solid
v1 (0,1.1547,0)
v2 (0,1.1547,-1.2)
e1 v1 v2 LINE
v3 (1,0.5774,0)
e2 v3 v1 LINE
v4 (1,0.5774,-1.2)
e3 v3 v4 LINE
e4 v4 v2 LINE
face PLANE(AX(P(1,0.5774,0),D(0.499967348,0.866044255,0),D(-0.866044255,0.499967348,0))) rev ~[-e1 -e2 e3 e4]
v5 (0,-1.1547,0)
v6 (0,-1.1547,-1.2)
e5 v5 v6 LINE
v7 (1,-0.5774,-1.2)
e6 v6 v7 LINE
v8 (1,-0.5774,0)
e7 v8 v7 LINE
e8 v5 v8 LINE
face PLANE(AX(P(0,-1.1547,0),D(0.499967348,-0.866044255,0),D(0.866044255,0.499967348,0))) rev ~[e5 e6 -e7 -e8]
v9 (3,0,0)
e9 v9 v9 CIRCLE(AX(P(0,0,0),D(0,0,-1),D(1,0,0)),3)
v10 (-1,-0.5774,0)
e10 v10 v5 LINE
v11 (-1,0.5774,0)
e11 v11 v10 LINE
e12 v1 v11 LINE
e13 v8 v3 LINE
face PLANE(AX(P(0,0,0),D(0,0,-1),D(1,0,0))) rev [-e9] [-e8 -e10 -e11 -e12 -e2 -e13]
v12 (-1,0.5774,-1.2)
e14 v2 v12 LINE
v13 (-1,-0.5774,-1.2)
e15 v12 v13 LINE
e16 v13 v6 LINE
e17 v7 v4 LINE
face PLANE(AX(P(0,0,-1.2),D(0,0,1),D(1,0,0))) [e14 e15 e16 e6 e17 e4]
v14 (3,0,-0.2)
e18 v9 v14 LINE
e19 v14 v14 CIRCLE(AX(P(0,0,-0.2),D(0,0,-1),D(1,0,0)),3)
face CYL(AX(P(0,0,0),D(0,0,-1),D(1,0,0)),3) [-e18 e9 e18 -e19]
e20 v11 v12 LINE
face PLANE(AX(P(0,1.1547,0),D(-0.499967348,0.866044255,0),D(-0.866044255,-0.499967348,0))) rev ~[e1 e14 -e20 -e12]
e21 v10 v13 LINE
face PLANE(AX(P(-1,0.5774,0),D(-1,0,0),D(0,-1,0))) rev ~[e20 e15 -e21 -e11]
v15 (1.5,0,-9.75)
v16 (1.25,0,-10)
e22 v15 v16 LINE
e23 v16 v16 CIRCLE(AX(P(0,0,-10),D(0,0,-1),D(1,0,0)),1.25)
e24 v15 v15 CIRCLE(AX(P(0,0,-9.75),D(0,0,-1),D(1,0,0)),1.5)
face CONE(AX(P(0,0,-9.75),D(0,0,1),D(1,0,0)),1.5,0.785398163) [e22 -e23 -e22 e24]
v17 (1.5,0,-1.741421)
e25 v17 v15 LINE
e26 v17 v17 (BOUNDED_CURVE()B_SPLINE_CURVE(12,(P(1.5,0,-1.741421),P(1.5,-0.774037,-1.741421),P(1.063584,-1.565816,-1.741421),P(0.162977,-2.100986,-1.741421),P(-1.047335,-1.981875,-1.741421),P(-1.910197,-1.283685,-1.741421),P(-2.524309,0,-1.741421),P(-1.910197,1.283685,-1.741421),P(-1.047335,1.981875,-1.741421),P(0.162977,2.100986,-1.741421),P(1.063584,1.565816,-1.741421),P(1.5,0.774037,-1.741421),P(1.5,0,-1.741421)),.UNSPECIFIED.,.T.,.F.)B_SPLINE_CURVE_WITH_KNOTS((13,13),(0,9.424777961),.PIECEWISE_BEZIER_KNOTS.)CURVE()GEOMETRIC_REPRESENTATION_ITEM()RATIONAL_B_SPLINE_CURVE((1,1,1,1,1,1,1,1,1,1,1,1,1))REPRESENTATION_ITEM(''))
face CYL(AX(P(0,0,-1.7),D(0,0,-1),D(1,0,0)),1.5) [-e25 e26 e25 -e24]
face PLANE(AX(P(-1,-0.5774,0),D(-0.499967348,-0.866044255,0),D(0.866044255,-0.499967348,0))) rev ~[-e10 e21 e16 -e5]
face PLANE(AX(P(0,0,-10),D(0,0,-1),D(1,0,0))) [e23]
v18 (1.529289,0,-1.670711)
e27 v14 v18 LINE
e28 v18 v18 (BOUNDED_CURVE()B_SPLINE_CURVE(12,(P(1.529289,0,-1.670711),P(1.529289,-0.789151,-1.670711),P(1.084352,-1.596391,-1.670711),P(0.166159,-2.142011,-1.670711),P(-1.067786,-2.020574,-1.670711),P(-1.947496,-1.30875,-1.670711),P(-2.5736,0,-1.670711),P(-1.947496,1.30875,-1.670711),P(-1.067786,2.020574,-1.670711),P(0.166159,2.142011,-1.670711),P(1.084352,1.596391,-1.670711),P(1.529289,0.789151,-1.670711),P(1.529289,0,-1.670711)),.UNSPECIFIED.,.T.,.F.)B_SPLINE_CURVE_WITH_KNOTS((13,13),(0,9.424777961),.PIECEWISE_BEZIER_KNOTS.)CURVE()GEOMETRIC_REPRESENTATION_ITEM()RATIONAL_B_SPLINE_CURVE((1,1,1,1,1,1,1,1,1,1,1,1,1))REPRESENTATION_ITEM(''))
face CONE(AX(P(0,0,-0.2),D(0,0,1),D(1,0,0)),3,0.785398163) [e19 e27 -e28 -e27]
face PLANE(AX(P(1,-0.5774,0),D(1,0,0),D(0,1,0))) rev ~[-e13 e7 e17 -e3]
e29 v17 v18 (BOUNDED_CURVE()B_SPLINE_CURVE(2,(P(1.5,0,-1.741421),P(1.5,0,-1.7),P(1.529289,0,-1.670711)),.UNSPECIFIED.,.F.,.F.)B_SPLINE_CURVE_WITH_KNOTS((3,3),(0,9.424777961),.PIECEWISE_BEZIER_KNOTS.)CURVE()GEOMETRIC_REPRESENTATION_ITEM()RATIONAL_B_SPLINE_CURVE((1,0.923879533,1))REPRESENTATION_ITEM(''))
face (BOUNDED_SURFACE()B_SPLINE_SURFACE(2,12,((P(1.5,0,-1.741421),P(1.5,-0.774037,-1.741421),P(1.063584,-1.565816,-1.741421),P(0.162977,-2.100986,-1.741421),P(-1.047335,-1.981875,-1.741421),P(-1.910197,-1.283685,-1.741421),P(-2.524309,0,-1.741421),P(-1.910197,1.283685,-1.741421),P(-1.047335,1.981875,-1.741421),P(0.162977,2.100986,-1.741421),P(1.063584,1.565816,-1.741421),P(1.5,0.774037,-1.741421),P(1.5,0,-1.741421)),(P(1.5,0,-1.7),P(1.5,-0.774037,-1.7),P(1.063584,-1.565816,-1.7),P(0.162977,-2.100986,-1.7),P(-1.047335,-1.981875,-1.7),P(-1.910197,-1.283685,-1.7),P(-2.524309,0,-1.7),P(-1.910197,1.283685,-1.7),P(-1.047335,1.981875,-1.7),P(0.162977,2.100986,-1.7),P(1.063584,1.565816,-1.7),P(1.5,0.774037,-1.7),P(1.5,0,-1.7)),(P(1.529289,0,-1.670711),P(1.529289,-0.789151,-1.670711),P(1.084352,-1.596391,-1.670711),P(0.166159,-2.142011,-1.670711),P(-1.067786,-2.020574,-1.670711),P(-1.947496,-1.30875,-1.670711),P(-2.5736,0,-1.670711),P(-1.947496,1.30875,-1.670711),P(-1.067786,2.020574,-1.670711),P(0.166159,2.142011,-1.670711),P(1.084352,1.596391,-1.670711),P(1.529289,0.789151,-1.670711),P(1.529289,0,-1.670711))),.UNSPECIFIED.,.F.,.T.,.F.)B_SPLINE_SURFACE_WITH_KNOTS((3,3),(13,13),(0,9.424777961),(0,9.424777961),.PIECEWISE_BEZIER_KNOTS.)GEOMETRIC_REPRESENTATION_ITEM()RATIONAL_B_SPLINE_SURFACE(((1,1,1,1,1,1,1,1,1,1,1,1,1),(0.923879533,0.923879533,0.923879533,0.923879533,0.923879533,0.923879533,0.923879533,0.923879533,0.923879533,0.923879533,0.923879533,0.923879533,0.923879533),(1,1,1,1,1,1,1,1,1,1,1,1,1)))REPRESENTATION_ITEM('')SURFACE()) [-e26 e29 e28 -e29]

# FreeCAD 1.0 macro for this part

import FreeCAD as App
import Part
import Sketcher
Q = App.Units.Quantity


def edges_at(feature, points):
    """Names of the edges that pass closest to the given points."""
    edges = feature.Shape.Edges
    near = lambda p: min(range(len(edges)), key=lambda i: edges[i].distToShape(Part.Vertex(*p))[0])
    return sorted({f"Edge{near(p) + 1}" for p in points})


def add_polygon(sketch, points):
    """Adds a closed chain of lines whose ends are joined by coincident constraints."""
    first, n = sketch.GeometryCount, len(points)
    for a, b in zip(points, points[1:] + points[:1]):
        sketch.addGeometry(Part.LineSegment(App.Vector(*a, 0), App.Vector(*b, 0)), False)
    for i in range(n):
        sketch.addConstraint(Sketcher.Constraint("Coincident", first + i, 2, first + (i + 1) % n, 1))

doc = App.newDocument("Part")
body = doc.addObject("PartDesign::Body", "Body")

# Sketch on XZ plane
sketch1 = body.newObject("Sketcher::SketchObject", "Sketch")
sketch1.AttachmentSupport = (doc.getObject("XZ_Plane"), [""])
sketch1.MapMode = "FlatFace"
add_polygon(sketch1, [(1.5, -1.7), (1.5, -10), (0, -10), (0, 0), (3, 0), (3, -0.2)])  # lines 0-5
sketch1.addConstraint(Sketcher.Constraint("Vertical", 0))
sketch1.addConstraint(Sketcher.Constraint("Horizontal", 1))
sketch1.addConstraint(Sketcher.Constraint("Vertical", 2))
sketch1.addConstraint(Sketcher.Constraint("Horizontal", 3))
sketch1.addConstraint(Sketcher.Constraint("Vertical", 4))
sketch1.addConstraint(Sketcher.Constraint("Coincident", 2, 2, -1, 1))
sketch1.addConstraint(Sketcher.Constraint("DistanceX", 3, 1, 3, 2, Q("3 mm")))
sketch1.addConstraint(Sketcher.Constraint("DistanceY", 2, 1, 2, 2, Q("10 mm")))
sketch1.addConstraint(Sketcher.Constraint("DistanceX", 1, 2, 1, 1, Q("1.5 mm")))
sketch1.addConstraint(Sketcher.Constraint("DistanceY", 4, 2, 4, 1, Q("0.2 mm")))
sketch1.addConstraint(Sketcher.Constraint("DistanceY", 5, 2, 4, 2, Q("1.5 mm")))
revolution = body.newObject("PartDesign::Revolution", "Revolution")
revolution.Profile = sketch1
revolution.ReferenceAxis = (sketch1, ["V_Axis"])
revolution.Angle = 360

# Sketch on XY plane
sketch2 = body.newObject("Sketcher::SketchObject", "Sketch001")
sketch2.AttachmentSupport = (doc.getObject("XY_Plane"), [""])
sketch2.MapMode = "FlatFace"
add_polygon(sketch2, [(0, 1.2), (-1, 0.6), (-1, -0.6), (0, -1.2), (1, -0.6), (1, 0.6)])  # lines 0-5
sketch2.addConstraint(Sketcher.Constraint("Vertical", 1))
sketch2.addConstraint(Sketcher.Constraint("Vertical", 4))
sketch2.addConstraint(Sketcher.Constraint("Symmetric", 0, 2, 3, 2, -1, 1))
sketch2.addConstraint(Sketcher.Constraint("Symmetric", 2, 2, 5, 2, -1, 1))
sketch2.addConstraint(Sketcher.Constraint("PointOnObject", 2, 2, -2))
sketch2.addConstraint(Sketcher.Constraint("Parallel", 2, 5))
sketch2.addConstraint(Sketcher.Constraint("Horizontal", 1, 2, 3, 2))
sketch2.addConstraint(Sketcher.Constraint("DistanceX", 1, 2, 3, 2, Q("2 mm")))
sketch2.addConstraint(Sketcher.Constraint("DistanceY", 1, 2, 1, 1, Q("1.1548 mm")))
sketch2.addConstraint(Sketcher.Constraint("DistanceY", 2, 2, 0, 2, Q("1.732 mm")))
pocket1 = body.newObject("PartDesign::Pocket", "Pocket")
pocket1.Profile = sketch2
pocket1.Length = 1.2
doc.recompute()

fillet = body.newObject("PartDesign::Fillet", "Fillet")
fillet.Base = (pocket1, edges_at(pocket1, [(-1.5, 0, -1.7)]))
fillet.Radius = 0.1
doc.recompute()

chamfer = body.newObject("PartDesign::Chamfer", "Chamfer")
chamfer.Base = (fillet, edges_at(fillet, [(-1.5, 0, -10)]))
chamfer.Size = 0.25

doc.recompute()
